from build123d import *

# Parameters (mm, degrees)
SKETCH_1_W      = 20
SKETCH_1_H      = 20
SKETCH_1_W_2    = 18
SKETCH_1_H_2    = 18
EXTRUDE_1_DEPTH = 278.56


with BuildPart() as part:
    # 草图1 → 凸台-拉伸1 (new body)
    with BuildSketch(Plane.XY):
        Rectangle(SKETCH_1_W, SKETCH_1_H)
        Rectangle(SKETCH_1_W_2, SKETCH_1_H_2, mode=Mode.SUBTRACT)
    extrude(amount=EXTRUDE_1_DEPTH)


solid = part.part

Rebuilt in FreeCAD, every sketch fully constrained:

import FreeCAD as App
import Part
import Sketcher
from FreeCAD import Vector
Q = App.Units.Quantity

doc = App.newDocument("Part")
body = doc.addObject("PartDesign::Body", "Body")

# Sketch on XY plane
sketch1 = body.newObject("Sketcher::SketchObject", "Sketch")
sketch1.AttachmentSupport = (doc.getObject("XY_Plane"), [""])
sketch1.MapMode = "FlatFace"
sketch1.addGeometry(Part.LineSegment(Vector(-10, 10, 0), Vector(-10, -10, 0)), False)
sketch1.addGeometry(Part.LineSegment(Vector(-10, -10, 0), Vector(10, -10, 0)), False)
sketch1.addGeometry(Part.LineSegment(Vector(10, -10, 0), Vector(10, 10, 0)), False)
sketch1.addGeometry(Part.LineSegment(Vector(10, 10, 0), Vector(-10, 10, 0)), False)
sketch1.addGeometry(Part.LineSegment(Vector(9, -9, 0), Vector(-9, -9, 0)), False)
sketch1.addGeometry(Part.LineSegment(Vector(-9, -9, 0), Vector(-9, 9, 0)), False)
sketch1.addGeometry(Part.LineSegment(Vector(-9, 9, 0), Vector(9, 9, 0)), False)
sketch1.addGeometry(Part.LineSegment(Vector(9, 9, 0), Vector(9, -9, 0)), False)
sketch1.addConstraint(Sketcher.Constraint("Coincident", 0, 2, 1, 1))
sketch1.addConstraint(Sketcher.Constraint("Coincident", 1, 2, 2, 1))
sketch1.addConstraint(Sketcher.Constraint("Coincident", 2, 2, 3, 1))
sketch1.addConstraint(Sketcher.Constraint("Coincident", 3, 2, 0, 1))
sketch1.addConstraint(Sketcher.Constraint("Coincident", 4, 2, 5, 1))
sketch1.addConstraint(Sketcher.Constraint("Coincident", 5, 2, 6, 1))
sketch1.addConstraint(Sketcher.Constraint("Coincident", 6, 2, 7, 1))
sketch1.addConstraint(Sketcher.Constraint("Coincident", 7, 2, 4, 1))
sketch1.addConstraint(Sketcher.Constraint("Vertical", 0))
sketch1.addConstraint(Sketcher.Constraint("Horizontal", 1))
sketch1.addConstraint(Sketcher.Constraint("Vertical", 2))
sketch1.addConstraint(Sketcher.Constraint("Horizontal", 3))
sketch1.addConstraint(Sketcher.Constraint("Horizontal", 4))
sketch1.addConstraint(Sketcher.Constraint("Vertical", 5))
sketch1.addConstraint(Sketcher.Constraint("Horizontal", 6))
sketch1.addConstraint(Sketcher.Constraint("Vertical", 7))
sketch1.addConstraint(Sketcher.Constraint("Symmetric", 0, 2, 2, 2, -1, 1))
sketch1.addConstraint(Sketcher.Constraint("Symmetric", 4, 2, 6, 2, -1, 1))
sketch1.addConstraint(Sketcher.Constraint("Equal", 3, 0))
sketch1.addConstraint(Sketcher.Constraint("Equal", 6, 5))
sketch1.addConstraint(Sketcher.Constraint("DistanceX", 1, 1, 1, 2, Q("20 mm")))
sketch1.addConstraint(Sketcher.Constraint("DistanceX", 4, 2, 4, 1, Q("18 mm")))
pad1 = body.newObject("PartDesign::Pad", "Pad")
pad1.Profile = sketch1
pad1.Length = 278.56

doc.recompute()
